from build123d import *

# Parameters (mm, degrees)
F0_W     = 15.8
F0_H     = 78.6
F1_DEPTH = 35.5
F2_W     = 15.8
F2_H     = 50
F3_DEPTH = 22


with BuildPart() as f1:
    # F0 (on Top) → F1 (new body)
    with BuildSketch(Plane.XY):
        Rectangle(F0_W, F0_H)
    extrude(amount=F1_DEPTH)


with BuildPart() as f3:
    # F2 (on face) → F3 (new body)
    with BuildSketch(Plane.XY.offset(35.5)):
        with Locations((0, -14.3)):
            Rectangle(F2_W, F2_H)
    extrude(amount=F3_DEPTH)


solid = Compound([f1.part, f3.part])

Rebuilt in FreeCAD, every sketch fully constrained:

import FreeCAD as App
import Part
import Sketcher

V = App.Vector
Q = App.Units.Quantity


def add_polygon(sketch, points):
    """Adds a closed chain of lines whose ends are joined by coincident constraints."""
    first, n = sketch.GeometryCount, len(points)
    for a, b in zip(points, points[1:] + points[:1]):
        sketch.addGeometry(Part.LineSegment(App.Vector(*a, 0), App.Vector(*b, 0)), False)
    for i in range(n):
        sketch.addConstraint(Sketcher.Constraint("Coincident", first + i, 2, first + (i + 1) % n, 1))

doc = App.newDocument("Part")
body = doc.addObject("PartDesign::Body", "Body")

sketch1 = body.newObject("Sketcher::SketchObject", "Sketch")
sketch1.AttachmentSupport = (doc.getObject("XY_Plane"), [""])
sketch1.MapMode = "FlatFace"
add_polygon(sketch1, [(-7.9, 39.3), (-7.9, -39.3), (7.9, -39.3), (7.9, 39.3)])
sketch1.addConstraint(Sketcher.Constraint("Vertical", 0))
sketch1.addConstraint(Sketcher.Constraint("Horizontal", 1))
sketch1.addConstraint(Sketcher.Constraint("Vertical", 2))
sketch1.addConstraint(Sketcher.Constraint("Horizontal", 3))
sketch1.addConstraint(Sketcher.Constraint("Symmetric", 0, 2, 2, 2, -1, 1))
sketch1.addConstraint(Sketcher.Constraint("DistanceX", 1, 1, 1, 2, Q("15.8 mm")))
sketch1.addConstraint(Sketcher.Constraint("DistanceY", 0, 2, 0, 1, Q("78.6 mm")))
pad1 = body.newObject("PartDesign::Pad", "Pad")
pad1.Profile = sketch1
pad1.Length = 35.5
body2 = doc.addObject("PartDesign::Body", "Body001")

sketch2 = body2.newObject("Sketcher::SketchObject", "Sketch001")
sketch2.AttachmentSupport = (doc.getObject("XY_Plane001"), [""])
sketch2.MapMode = "FlatFace"
sketch2.AttachmentOffset = App.Placement(V(0, 0, 35.5), App.Rotation())
add_polygon(sketch2, [(-7.9, 10.7), (-7.9, -39.3), (7.9, -39.3), (7.9, 10.7)])
sketch2.addConstraint(Sketcher.Constraint("Vertical", 0))
sketch2.addConstraint(Sketcher.Constraint("Horizontal", 1))
sketch2.addConstraint(Sketcher.Constraint("Vertical", 2))
sketch2.addConstraint(Sketcher.Constraint("Horizontal", 3))
sketch2.addConstraint(Sketcher.Constraint("DistanceY", 0, 2, 0, 1, Q("50 mm")))
sketch2.addConstraint(Sketcher.Constraint("DistanceX", 1, 1, 1, 2, Q("15.8 mm")))
sketch2.addConstraint(Sketcher.Constraint("DistanceX", 0, 2, -1, 1, Q("7.9 mm")))
sketch2.addConstraint(Sketcher.Constraint("DistanceY", 0, 2, -1, 1, Q("39.3 mm")))
pad2 = body2.newObject("PartDesign::Pad", "Pad001")
pad2.Profile = sketch2
pad2.Length = 22

doc.recompute()
